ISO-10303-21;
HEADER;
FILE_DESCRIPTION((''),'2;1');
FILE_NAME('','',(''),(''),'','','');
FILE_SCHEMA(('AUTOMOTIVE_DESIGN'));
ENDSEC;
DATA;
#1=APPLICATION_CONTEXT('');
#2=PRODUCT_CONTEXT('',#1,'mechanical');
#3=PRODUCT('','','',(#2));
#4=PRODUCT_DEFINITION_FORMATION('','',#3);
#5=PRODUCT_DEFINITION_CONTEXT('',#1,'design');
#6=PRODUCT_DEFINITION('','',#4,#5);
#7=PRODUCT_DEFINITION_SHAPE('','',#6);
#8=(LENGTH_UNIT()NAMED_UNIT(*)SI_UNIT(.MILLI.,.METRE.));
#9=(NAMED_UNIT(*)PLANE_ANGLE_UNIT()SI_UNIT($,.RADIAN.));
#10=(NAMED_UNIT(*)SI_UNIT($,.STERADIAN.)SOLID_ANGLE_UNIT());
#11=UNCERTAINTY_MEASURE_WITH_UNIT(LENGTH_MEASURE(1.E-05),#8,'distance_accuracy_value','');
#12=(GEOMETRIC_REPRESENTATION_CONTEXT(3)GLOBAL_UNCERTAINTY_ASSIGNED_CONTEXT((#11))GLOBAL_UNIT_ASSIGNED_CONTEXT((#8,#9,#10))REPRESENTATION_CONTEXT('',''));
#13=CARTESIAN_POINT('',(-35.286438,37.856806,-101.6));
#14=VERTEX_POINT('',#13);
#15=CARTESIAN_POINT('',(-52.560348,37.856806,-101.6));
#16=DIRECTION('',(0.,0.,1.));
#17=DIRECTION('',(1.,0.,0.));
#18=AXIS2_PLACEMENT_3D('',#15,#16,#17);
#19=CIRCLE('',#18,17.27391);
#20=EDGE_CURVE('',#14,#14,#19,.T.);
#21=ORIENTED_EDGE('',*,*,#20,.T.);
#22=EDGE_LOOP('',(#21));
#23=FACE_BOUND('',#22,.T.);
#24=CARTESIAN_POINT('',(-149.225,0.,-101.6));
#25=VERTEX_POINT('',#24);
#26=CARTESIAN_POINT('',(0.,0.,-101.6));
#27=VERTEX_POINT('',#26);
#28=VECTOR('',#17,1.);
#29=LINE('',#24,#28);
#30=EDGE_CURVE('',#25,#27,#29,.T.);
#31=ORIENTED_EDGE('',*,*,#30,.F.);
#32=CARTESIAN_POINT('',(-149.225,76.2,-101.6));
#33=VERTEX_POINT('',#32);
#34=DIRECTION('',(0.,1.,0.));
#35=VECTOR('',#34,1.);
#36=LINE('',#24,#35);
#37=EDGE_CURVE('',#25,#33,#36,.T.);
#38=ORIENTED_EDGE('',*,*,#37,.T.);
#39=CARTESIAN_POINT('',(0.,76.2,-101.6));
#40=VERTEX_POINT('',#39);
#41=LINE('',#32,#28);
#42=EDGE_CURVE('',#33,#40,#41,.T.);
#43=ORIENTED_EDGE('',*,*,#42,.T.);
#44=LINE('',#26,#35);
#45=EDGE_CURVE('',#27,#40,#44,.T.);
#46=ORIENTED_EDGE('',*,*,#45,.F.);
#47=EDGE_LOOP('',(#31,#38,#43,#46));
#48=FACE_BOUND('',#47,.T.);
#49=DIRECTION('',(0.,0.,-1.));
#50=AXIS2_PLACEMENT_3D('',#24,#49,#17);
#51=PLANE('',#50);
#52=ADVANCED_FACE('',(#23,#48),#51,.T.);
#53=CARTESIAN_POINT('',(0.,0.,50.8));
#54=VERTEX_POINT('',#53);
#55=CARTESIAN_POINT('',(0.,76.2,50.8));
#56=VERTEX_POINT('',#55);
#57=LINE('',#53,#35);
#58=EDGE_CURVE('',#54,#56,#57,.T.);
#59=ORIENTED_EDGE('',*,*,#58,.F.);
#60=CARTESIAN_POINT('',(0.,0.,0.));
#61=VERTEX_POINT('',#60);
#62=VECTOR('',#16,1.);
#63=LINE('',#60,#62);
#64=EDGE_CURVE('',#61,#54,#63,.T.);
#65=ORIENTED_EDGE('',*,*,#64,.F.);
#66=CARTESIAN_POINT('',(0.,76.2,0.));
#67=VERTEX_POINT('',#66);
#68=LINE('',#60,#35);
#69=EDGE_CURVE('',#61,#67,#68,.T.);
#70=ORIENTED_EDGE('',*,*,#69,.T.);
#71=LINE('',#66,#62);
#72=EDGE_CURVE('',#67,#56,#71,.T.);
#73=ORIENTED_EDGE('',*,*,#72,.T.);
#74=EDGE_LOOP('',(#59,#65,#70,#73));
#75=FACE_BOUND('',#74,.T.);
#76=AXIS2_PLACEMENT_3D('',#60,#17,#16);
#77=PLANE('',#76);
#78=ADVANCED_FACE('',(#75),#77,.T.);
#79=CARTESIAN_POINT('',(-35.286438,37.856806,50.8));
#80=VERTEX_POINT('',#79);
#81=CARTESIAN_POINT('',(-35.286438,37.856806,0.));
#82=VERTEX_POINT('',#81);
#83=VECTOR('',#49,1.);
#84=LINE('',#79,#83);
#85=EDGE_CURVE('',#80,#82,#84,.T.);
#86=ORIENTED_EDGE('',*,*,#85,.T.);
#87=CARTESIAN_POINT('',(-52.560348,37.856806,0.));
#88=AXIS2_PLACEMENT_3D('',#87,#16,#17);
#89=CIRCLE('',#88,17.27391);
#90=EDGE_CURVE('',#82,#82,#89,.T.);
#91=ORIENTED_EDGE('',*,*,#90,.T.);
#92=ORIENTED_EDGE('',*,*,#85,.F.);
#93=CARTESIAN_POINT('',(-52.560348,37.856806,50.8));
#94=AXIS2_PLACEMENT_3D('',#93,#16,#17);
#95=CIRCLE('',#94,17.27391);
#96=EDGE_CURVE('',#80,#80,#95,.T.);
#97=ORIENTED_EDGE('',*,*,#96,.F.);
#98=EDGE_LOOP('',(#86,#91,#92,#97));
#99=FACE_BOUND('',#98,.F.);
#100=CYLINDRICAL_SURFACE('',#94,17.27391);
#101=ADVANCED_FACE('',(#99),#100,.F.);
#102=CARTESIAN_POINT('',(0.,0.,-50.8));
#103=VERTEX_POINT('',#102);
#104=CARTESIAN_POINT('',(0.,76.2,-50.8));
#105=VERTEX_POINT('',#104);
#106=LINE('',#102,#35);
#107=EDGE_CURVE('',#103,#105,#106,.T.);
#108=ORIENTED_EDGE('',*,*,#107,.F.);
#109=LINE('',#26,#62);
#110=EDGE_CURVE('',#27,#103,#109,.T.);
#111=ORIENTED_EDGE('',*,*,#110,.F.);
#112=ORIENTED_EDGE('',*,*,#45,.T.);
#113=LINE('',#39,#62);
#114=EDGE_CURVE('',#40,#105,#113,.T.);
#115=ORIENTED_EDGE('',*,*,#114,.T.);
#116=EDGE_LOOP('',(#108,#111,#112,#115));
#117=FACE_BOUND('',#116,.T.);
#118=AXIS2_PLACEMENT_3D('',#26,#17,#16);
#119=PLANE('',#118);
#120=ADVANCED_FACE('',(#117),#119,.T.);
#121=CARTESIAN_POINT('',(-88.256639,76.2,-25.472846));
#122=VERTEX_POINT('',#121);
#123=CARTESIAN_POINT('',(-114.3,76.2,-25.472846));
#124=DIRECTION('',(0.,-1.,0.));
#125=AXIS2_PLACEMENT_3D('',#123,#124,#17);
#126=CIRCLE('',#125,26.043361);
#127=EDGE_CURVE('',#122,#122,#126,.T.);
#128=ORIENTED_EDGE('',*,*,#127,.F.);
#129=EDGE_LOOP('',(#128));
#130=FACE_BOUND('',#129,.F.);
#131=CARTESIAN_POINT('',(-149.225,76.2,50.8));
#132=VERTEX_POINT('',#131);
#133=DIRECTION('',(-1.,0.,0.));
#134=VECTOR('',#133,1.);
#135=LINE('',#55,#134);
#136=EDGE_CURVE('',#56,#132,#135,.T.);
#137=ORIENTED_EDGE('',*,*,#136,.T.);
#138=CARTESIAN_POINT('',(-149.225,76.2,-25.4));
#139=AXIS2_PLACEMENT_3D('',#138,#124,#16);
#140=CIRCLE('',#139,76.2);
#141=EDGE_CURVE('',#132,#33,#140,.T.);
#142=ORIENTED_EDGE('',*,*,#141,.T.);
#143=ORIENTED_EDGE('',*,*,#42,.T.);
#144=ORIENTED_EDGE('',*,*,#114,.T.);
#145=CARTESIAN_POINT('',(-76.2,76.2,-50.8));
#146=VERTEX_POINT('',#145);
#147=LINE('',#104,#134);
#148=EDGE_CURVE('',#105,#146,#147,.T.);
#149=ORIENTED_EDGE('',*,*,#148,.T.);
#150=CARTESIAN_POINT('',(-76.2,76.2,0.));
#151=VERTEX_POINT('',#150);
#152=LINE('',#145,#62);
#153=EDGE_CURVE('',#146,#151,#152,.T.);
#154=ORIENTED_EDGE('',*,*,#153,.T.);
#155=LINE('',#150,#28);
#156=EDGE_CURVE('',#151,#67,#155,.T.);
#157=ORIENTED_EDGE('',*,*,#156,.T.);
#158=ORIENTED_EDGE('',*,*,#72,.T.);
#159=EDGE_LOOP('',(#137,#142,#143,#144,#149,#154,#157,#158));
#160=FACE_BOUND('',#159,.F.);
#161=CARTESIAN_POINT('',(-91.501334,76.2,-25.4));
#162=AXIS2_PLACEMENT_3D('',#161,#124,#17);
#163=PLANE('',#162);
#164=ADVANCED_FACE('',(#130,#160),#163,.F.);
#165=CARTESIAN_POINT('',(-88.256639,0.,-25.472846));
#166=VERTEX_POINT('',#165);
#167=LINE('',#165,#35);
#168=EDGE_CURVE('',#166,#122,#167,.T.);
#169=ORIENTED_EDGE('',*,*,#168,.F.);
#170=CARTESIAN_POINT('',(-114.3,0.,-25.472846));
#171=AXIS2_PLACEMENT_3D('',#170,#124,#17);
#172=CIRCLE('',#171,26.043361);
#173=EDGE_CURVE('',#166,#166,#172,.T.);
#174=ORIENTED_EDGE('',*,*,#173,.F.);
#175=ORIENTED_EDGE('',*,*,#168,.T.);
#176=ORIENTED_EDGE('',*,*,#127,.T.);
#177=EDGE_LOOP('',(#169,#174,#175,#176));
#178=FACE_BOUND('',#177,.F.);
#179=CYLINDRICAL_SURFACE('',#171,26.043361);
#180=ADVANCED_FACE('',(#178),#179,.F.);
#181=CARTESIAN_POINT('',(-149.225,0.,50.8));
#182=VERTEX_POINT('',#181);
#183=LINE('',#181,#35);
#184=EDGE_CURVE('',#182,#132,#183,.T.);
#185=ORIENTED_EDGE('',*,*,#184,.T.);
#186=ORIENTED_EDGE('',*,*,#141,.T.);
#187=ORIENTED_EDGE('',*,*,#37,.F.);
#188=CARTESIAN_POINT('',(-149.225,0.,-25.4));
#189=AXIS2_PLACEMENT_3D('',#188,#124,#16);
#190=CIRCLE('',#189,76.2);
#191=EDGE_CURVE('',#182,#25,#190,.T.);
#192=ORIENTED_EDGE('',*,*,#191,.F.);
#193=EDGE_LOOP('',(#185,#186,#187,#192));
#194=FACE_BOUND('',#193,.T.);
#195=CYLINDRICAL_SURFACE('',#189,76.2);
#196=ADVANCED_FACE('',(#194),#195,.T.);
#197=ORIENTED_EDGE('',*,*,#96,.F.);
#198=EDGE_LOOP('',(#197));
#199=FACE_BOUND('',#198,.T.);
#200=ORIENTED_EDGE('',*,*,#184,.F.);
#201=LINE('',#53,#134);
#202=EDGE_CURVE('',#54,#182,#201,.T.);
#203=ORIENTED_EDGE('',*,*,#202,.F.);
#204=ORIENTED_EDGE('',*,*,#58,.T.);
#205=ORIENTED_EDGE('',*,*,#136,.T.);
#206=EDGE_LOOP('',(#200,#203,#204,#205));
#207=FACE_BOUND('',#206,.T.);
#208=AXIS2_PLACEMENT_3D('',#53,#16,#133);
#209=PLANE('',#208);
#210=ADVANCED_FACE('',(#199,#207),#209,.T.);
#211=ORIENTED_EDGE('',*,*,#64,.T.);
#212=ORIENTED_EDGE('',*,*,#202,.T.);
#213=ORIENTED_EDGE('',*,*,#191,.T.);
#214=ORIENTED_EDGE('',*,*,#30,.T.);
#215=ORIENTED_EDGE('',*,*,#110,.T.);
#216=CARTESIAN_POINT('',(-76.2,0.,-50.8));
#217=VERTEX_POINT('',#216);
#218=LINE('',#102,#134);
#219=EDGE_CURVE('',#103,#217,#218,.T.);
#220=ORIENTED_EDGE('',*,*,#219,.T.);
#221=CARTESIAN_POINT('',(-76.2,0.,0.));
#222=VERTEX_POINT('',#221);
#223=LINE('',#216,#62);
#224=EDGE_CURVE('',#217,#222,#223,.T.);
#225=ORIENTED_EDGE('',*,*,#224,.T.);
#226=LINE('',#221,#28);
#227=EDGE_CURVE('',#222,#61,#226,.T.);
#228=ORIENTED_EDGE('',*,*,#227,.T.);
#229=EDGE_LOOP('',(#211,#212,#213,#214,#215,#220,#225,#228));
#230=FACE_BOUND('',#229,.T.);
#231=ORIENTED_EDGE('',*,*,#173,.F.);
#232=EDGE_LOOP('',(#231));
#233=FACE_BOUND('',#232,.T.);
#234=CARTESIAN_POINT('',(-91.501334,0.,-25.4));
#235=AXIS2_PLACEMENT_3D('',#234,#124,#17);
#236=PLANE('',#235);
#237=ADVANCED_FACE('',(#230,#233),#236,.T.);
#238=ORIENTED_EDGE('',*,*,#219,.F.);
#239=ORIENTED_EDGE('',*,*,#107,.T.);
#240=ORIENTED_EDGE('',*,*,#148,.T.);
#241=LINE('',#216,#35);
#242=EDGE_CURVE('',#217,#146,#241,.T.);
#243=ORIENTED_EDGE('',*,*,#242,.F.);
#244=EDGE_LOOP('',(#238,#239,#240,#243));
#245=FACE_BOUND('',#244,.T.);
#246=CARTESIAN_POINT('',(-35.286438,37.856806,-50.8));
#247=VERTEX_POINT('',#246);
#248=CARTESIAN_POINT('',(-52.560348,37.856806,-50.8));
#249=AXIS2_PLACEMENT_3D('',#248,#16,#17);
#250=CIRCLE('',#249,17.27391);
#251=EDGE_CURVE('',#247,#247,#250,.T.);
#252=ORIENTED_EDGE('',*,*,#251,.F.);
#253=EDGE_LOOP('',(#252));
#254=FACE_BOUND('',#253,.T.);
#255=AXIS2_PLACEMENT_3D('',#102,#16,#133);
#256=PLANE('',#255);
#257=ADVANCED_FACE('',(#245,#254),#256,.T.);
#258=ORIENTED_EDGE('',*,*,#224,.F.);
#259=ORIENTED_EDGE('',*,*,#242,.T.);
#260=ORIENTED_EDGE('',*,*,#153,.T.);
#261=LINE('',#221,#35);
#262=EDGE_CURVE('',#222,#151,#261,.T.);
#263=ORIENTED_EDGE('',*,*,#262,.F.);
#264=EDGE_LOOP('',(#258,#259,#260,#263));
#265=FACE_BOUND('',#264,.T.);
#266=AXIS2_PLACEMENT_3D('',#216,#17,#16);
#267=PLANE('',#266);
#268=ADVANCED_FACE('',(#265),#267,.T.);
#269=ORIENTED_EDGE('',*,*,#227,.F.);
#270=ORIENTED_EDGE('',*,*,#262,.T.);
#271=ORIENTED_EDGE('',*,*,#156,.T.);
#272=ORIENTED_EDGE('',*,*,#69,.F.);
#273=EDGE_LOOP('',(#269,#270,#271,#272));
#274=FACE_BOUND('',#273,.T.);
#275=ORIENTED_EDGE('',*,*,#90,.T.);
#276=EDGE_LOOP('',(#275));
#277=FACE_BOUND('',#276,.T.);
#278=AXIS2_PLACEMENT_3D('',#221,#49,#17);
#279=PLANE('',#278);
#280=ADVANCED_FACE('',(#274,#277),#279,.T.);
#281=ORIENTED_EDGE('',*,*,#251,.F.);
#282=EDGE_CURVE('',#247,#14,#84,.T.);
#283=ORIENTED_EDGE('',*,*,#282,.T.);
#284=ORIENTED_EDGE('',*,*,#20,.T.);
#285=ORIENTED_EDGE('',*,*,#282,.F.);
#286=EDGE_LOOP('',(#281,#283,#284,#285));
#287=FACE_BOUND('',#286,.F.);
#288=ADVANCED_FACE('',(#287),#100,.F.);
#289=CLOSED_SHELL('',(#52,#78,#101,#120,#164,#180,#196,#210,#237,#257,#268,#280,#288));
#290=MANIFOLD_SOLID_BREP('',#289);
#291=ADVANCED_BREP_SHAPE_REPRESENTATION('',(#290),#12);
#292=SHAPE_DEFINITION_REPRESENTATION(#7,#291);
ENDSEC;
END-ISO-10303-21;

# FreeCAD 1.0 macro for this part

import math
import FreeCAD as App
import Part
import Sketcher

V = App.Vector
Q = App.Units.Quantity

doc = App.newDocument("Part")
body = doc.addObject("PartDesign::Body", "Body")

# Sketch on XZ plane
sketch1 = body.newObject("Sketcher::SketchObject", "Sketch")
sketch1.AttachmentSupport = (doc.getObject("XZ_Plane"), [""])
sketch1.MapMode = "FlatFace"
sketch1.addGeometry([
    Part.LineSegment(V(-76, 0, 0), V(0, 0, 0)),  # 0
    Part.LineSegment(V(0, 0, 0), V(0, 51, 0)),  # 1
    Part.LineSegment(V(0, 51, 0), V(-149, 51, 0)),  # 2
    Part.ArcOfCircle(Part.Circle(V(-149, -25, 0), V(0, 0, 1), 76), math.radians(90), math.radians(270)),  # 3
    Part.LineSegment(V(-149, -102, 0), V(0, -102, 0)),  # 4
    Part.LineSegment(V(0, -102, 0), V(0, -51, 0)),  # 5
    Part.LineSegment(V(0, -51, 0), V(-76, -51, 0)),  # 6
    Part.LineSegment(V(-76, -51, 0), V(-76, 0, 0)),  # 7
    Part.Circle(V(-114, -25, 0), V(0, 0, 1), 26),  # 8
], False)
sketch1.addConstraint([
    Sketcher.Constraint("Coincident", 0, 2, 1, 1),
    Sketcher.Constraint("Coincident", 1, 2, 2, 1),
    Sketcher.Constraint("Tangent", 2, 2, 3, 1),
    Sketcher.Constraint("Tangent", 3, 2, 4, 1),
    Sketcher.Constraint("Coincident", 4, 2, 5, 1),
    Sketcher.Constraint("Coincident", 5, 2, 6, 1),
    Sketcher.Constraint("Coincident", 6, 2, 7, 1),
    Sketcher.Constraint("Coincident", 7, 2, 0, 1),
    Sketcher.Constraint("Horizontal", 0),
    Sketcher.Constraint("Vertical", 1),
    Sketcher.Constraint("Horizontal", 2),
    Sketcher.Constraint("Horizontal", 4),
    Sketcher.Constraint("Vertical", 5),
    Sketcher.Constraint("Horizontal", 6),
    Sketcher.Constraint("Vertical", 7),
    Sketcher.Constraint("Coincident", 0, 2, -1, 1),
    Sketcher.Constraint("Symmetric", 1, 2, 5, 2, -1, 1),
    Sketcher.Constraint("Equal", 1, 5),
    Sketcher.Constraint("Radius", 3, Q("3 in")),
    Sketcher.Constraint("DistanceX", 0, 1, 0, 2, Q("3 in")),
    Sketcher.Constraint("DistanceX", 8, 3, -1, 1, Q("4.5 in")),
    Sketcher.Constraint("DistanceX", 2, 2, 2, 1, Q("5.875 in")),
    Sketcher.Constraint("Diameter", 8, 52.086722),
    Sketcher.Constraint("DistanceY", 8, 3, -1, 1, 25.472846),
])
pad1 = body.newObject("PartDesign::Pad", "Pad")
pad1.Profile = sketch1
pad1.Length = Q("3 in")
pad1.Reversed = True

# Sketch on XY plane
sketch2 = body.newObject("Sketcher::SketchObject", "Sketch001")
sketch2.AttachmentSupport = (doc.getObject("XY_Plane"), [""])
sketch2.MapMode = "FlatFace"
sketch2.AttachmentOffset = App.Placement(V(0, 0, 2 * 25.4), App.Rotation())
sketch2.addGeometry(Part.Circle(V(-53, 38, 0), V(0, 0, 1), 17), False)
sketch2.addConstraint([
    Sketcher.Constraint("Diameter", 0, 34.54782),
    Sketcher.Constraint("DistanceX", 0, 3, -1, 1, 52.560348),
    Sketcher.Constraint("DistanceY", -1, 1, 0, 3, 37.856806),
])
pocket1 = body.newObject("PartDesign::Pocket", "Pocket")
pocket1.Profile = sketch2
pocket1.Length = Q("6 in")

doc.recompute()
